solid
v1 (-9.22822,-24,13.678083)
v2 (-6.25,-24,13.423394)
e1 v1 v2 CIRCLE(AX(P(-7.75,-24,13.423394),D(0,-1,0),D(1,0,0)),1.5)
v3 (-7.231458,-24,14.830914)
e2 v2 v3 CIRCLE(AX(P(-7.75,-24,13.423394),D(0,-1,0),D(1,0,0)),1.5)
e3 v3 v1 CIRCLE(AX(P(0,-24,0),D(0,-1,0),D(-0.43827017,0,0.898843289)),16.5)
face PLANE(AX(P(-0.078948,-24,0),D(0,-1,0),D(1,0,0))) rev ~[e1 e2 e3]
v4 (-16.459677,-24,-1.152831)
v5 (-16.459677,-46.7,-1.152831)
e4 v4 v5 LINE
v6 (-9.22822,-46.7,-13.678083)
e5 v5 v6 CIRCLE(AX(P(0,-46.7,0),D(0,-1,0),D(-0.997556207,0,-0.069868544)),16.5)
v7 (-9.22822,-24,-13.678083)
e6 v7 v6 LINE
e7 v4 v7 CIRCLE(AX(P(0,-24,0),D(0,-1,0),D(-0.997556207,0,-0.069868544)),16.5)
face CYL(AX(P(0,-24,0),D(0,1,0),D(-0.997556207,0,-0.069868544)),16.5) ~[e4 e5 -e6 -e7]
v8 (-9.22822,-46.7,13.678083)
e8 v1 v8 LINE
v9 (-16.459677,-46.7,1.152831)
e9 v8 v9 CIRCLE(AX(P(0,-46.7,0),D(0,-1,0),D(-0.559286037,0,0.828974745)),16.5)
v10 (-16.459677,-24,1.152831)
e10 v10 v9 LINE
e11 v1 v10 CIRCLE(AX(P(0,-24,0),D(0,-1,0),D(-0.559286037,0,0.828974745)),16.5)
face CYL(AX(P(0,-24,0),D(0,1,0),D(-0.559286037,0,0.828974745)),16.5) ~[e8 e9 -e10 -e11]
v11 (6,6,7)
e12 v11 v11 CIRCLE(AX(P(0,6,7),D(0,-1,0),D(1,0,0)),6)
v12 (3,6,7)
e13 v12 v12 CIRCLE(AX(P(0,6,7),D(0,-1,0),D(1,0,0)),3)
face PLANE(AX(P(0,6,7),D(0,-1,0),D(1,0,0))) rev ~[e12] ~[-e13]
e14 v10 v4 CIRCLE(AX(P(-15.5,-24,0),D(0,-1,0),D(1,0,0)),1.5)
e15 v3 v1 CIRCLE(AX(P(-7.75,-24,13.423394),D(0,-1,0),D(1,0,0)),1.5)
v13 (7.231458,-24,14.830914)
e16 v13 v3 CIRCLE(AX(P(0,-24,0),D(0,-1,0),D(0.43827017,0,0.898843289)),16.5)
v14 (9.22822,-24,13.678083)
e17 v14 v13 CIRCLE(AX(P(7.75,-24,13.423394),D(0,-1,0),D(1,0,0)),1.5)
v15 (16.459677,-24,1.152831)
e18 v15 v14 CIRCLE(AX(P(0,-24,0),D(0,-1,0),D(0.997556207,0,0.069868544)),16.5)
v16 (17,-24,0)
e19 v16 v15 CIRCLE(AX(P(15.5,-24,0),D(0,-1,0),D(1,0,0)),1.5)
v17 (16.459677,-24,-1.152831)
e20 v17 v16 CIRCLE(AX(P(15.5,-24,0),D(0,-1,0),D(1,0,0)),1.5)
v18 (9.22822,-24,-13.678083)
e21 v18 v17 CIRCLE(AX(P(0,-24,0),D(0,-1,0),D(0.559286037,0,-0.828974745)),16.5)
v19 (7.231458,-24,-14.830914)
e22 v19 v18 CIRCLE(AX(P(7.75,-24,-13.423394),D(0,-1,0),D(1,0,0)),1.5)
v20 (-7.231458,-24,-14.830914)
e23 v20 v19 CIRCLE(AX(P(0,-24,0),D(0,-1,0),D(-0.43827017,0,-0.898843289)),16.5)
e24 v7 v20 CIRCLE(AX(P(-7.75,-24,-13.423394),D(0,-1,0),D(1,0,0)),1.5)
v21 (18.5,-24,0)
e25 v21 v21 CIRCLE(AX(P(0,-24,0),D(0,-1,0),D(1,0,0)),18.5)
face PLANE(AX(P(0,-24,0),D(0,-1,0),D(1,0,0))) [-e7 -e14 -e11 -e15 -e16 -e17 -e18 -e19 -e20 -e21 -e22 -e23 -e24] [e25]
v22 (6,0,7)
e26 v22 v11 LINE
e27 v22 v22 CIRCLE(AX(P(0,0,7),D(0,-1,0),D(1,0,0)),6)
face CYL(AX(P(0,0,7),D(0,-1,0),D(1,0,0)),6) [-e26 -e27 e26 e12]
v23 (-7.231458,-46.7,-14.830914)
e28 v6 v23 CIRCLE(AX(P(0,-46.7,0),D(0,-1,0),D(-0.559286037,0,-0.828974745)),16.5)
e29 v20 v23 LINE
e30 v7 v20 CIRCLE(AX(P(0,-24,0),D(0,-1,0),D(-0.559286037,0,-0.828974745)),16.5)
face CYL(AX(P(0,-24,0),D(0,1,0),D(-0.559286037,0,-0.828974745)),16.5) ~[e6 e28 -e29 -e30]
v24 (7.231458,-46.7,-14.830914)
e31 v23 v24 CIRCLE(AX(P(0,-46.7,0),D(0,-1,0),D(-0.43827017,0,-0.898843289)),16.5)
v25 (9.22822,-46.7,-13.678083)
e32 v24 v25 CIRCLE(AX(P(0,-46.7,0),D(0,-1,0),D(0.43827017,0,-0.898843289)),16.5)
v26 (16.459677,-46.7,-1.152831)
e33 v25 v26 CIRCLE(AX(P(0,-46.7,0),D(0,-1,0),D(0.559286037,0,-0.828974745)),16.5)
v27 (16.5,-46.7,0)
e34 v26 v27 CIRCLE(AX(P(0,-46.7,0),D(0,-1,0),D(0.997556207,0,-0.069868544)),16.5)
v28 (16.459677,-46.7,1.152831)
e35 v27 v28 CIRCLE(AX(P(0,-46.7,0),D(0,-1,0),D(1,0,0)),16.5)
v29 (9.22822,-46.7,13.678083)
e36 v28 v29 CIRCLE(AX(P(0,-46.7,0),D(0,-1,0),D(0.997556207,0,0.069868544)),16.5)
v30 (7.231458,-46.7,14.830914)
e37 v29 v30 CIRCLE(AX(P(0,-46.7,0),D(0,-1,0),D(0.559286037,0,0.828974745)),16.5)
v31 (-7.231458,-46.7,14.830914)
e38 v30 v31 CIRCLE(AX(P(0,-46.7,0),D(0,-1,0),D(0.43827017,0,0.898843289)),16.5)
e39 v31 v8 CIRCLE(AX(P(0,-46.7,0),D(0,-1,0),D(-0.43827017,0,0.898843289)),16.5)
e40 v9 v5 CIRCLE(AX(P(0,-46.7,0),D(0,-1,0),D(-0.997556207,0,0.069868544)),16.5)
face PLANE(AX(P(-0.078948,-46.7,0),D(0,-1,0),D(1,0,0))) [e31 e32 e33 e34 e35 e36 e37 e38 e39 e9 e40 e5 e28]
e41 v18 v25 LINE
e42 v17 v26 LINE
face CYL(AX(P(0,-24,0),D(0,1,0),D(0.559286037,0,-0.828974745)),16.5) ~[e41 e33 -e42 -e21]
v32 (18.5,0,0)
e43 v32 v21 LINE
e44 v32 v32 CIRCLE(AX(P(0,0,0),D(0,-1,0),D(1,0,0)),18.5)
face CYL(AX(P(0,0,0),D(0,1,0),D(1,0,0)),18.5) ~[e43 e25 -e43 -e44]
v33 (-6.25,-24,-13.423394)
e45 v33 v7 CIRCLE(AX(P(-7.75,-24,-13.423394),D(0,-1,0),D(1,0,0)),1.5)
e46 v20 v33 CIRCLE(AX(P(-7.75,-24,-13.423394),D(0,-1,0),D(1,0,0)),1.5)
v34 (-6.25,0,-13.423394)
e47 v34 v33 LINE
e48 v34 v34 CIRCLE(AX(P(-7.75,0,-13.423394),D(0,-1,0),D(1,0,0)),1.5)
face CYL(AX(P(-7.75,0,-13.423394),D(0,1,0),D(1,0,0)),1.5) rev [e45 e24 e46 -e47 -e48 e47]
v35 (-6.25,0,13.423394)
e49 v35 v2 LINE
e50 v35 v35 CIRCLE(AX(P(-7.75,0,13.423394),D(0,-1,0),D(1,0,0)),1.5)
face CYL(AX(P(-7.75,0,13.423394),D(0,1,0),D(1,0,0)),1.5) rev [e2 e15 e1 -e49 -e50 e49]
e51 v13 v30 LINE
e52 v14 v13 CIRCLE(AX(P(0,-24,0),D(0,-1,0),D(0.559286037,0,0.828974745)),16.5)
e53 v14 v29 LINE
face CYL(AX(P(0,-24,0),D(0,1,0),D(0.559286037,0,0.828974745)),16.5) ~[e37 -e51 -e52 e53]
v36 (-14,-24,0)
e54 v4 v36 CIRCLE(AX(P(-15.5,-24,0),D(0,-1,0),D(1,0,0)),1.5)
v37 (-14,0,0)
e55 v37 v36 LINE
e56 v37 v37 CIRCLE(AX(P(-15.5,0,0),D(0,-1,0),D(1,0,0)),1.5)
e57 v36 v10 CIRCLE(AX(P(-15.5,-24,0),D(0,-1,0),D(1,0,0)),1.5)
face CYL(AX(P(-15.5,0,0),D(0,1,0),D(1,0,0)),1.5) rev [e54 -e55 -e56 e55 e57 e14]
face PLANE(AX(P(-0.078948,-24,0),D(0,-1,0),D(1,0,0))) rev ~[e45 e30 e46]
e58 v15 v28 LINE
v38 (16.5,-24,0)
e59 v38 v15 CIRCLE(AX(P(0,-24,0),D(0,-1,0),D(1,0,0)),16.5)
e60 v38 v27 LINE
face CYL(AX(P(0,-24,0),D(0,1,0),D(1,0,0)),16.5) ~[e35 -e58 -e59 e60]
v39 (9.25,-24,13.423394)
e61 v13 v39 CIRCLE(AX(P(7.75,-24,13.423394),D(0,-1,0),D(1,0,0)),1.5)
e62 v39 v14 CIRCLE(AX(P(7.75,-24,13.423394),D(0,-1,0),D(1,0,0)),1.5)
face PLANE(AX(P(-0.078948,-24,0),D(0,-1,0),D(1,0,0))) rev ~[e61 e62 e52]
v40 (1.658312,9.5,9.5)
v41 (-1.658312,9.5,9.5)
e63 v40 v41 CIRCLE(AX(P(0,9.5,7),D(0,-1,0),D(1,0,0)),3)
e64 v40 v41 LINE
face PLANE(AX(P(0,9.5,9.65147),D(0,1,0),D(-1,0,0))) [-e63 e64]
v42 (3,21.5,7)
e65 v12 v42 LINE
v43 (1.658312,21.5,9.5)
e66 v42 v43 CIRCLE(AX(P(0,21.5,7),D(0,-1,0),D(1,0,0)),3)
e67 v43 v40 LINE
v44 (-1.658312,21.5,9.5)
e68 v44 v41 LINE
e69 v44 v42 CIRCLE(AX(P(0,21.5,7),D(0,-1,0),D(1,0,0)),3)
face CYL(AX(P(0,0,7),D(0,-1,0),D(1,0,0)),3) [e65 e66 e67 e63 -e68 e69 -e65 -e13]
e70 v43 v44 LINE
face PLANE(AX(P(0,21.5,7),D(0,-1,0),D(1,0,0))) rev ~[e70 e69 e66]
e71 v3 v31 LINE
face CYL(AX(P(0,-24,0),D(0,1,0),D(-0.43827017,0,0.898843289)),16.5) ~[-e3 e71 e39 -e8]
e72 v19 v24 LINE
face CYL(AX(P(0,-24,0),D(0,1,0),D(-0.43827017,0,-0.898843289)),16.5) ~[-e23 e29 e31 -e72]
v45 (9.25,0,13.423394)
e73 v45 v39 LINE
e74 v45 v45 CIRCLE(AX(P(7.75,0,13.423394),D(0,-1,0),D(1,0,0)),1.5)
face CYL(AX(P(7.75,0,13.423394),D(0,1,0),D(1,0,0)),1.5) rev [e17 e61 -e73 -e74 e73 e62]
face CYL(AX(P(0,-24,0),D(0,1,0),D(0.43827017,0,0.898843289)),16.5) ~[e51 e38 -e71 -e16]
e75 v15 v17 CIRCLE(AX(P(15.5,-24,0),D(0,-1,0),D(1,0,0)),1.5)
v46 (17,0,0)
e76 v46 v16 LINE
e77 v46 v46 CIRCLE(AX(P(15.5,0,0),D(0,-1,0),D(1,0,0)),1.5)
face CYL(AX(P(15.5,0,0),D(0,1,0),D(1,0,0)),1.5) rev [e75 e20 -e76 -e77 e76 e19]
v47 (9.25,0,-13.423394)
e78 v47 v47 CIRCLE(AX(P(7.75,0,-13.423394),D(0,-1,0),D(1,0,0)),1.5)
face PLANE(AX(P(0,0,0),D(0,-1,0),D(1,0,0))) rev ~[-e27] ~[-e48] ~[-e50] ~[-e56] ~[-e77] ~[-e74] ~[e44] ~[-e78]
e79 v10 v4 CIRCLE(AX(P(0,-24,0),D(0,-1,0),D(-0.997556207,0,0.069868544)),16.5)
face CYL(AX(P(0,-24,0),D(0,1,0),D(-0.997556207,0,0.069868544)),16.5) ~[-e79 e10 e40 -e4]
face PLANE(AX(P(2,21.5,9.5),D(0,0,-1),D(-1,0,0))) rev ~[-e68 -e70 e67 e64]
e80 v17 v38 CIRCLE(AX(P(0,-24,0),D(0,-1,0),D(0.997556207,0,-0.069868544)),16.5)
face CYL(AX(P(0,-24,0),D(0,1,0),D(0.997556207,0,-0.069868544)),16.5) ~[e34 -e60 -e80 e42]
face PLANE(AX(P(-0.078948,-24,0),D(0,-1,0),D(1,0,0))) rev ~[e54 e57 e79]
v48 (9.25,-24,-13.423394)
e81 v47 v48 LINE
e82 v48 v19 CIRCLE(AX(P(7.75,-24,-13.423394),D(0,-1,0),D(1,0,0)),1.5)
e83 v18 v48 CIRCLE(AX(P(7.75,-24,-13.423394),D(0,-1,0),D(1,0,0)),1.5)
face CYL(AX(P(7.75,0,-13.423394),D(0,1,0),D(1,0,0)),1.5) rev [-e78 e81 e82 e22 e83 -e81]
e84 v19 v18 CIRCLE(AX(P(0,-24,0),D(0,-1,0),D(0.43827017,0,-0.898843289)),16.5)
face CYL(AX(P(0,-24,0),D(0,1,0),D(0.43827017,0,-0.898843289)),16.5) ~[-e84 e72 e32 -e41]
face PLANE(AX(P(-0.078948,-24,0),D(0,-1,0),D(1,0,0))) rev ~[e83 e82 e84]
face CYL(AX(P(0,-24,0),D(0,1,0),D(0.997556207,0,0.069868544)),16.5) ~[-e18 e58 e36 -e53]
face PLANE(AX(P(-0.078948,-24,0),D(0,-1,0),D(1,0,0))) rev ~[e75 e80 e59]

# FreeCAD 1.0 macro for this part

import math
import FreeCAD as App
import Part
import Sketcher


def add_polygon(sketch, points):
    """Adds a closed chain of lines whose ends are joined by coincident constraints."""
    first, n = sketch.GeometryCount, len(points)
    for a, b in zip(points, points[1:] + points[:1]):
        sketch.addGeometry(Part.LineSegment(App.Vector(*a, 0), App.Vector(*b, 0)), False)
    for i in range(n):
        sketch.addConstraint(Sketcher.Constraint("Coincident", first + i, 2, first + (i + 1) % n, 1))

doc = App.newDocument("Part")
params = doc.addObject("Spreadsheet::Sheet", "Params")
for row, (alias, value) in enumerate([
    ("sketch1_diameter", "37 mm"),
    ("sketch1_diameter2", "3 mm"),
    ("pad1_length", "24 mm"),
    ("sketch2_diameter", "6 mm"),
    ("pad2_length", "21.5 mm"),
    ("sketch3_diameter", "12 mm"),
    ("sketch3_diameter2", "6 mm"),
    ("pad3_length", "6 mm"),
    ("sketch4_width", "4 mm"),
    ("sketch4_height", "1 mm"),
    ("pocket1_length", "12 mm"),
    ("sketch5_radius", "16.5 mm"),
    ("pad4_length", "22.7 mm"),
], start=1):
    params.set(f"A{row}", alias)
    params.set(f"B{row}", "=" + value)
    params.setAlias(f"B{row}", alias)

body = doc.addObject("PartDesign::Body", "Body")

sketch1 = body.newObject("Sketcher::SketchObject", "Sketch")
sketch1.AttachmentSupport = (doc.getObject("XZ_Plane"), [""])
sketch1.MapMode = "FlatFace"
sketch1.addGeometry([
    Part.Circle(App.Vector(0, 0, 0), App.Vector(0, 0, 1), 18.5),
    Part.Circle(App.Vector(-7.75, -13.423394, 0), App.Vector(0, 0, 1), 1.5),
    Part.Circle(App.Vector(7.75, -13.423394, 0), App.Vector(0, 0, 1), 1.5),
    Part.Circle(App.Vector(-15.5, 0, 0), App.Vector(0, 0, 1), 1.5),
    Part.Circle(App.Vector(-7.75, 13.423394, 0), App.Vector(0, 0, 1), 1.5),
    Part.Circle(App.Vector(15.5, 0, 0), App.Vector(0, 0, 1), 1.5),
    Part.Circle(App.Vector(7.75, 13.423394, 0), App.Vector(0, 0, 1), 1.5),
], False)
sketch1.addConstraint([
    Sketcher.Constraint("Coincident", 0, 3, -1, 1),
    Sketcher.Constraint("Equal", 1, 2),
    Sketcher.Constraint("Equal", 2, 3),
    Sketcher.Constraint("Equal", 3, 4),
    Sketcher.Constraint("Equal", 4, 5),
    Sketcher.Constraint("Equal", 5, 6),
    Sketcher.Constraint("Symmetric", 2, 3, 4, 3, -1, 1),
    Sketcher.Constraint("Symmetric", 3, 3, 5, 3, -1, 1),
    Sketcher.Constraint("Symmetric", 1, 3, 6, 3, -1, 1),
    Sketcher.Constraint("Symmetric", 1, 3, 2, 3, -2),
    Sketcher.Constraint("PointOnObject", 3, 3, -1),
    Sketcher.Constraint("Diameter", 0, 37.0),
    Sketcher.Constraint("Diameter", 1, 3.0),
    Sketcher.Constraint("DistanceX", 3, 3, 5, 3, 31.0),
    Sketcher.Constraint("DistanceX", 1, 3, 2, 3, 15.5),
    Sketcher.Constraint("DistanceY", 1, 3, -1, 1, 13.423394),
])
sketch1.setExpression("Constraints[11]", "Params.sketch1_diameter")
sketch1.setExpression("Constraints[12]", "Params.sketch1_diameter2")
pad1 = body.newObject("PartDesign::Pad", "Pad")
pad1.Profile = sketch1
pad1.setExpression("Length", "Params.pad1_length")

sketch2 = body.newObject("Sketcher::SketchObject", "Sketch001")
sketch2.AttachmentSupport = (doc.getObject("XZ_Plane"), [""])
sketch2.MapMode = "FlatFace"
sketch2.addGeometry(Part.Circle(App.Vector(0, 7, 0), App.Vector(0, 0, 1), 3), False)
sketch2.addConstraint([
    Sketcher.Constraint("PointOnObject", 0, 3, -2),
    Sketcher.Constraint("Diameter", 0, 6.0),
    Sketcher.Constraint("DistanceY", -1, 1, 0, 3, 7.0),
])
sketch2.setExpression("Constraints[1]", "Params.sketch2_diameter")
pad2 = body.newObject("PartDesign::Pad", "Pad001")
pad2.Profile = sketch2
pad2.setExpression("Length", "Params.pad2_length")
pad2.Reversed = True

sketch3 = body.newObject("Sketcher::SketchObject", "Sketch002")
sketch3.AttachmentSupport = (doc.getObject("XZ_Plane"), [""])
sketch3.MapMode = "FlatFace"
sketch3.addGeometry([
    Part.Circle(App.Vector(0, 7, 0), App.Vector(0, 0, 1), 6),
    Part.Circle(App.Vector(0, 7, 0), App.Vector(0, 0, 1), 3),
], False)
sketch3.addConstraint([
    Sketcher.Constraint("Coincident", 1, 3, 0, 3),
    Sketcher.Constraint("PointOnObject", 0, 3, -2),
    Sketcher.Constraint("Diameter", 0, 12.0),
    Sketcher.Constraint("Diameter", 1, 6.0),
    Sketcher.Constraint("DistanceY", -1, 1, 0, 3, 7.0),
])
sketch3.setExpression("Constraints[2]", "Params.sketch3_diameter")
sketch3.setExpression("Constraints[3]", "Params.sketch3_diameter2")
pad3 = body.newObject("PartDesign::Pad", "Pad002")
pad3.Profile = sketch3
pad3.setExpression("Length", "Params.pad3_length")
pad3.Reversed = True

sketch4 = body.newObject("Sketcher::SketchObject", "Sketch003")
sketch4.AttachmentSupport = (doc.getObject("XZ_Plane"), [""])
sketch4.MapMode = "FlatFace"
sketch4.AttachmentOffset = App.Placement(App.Vector(0, 0, -21.5), App.Rotation())
add_polygon(sketch4, [(-2, 9.5), (-2, 10.5), (2, 10.5), (2, 9.5)])
sketch4.addConstraint([
    Sketcher.Constraint("Vertical", 0),
    Sketcher.Constraint("Horizontal", 1),
    Sketcher.Constraint("Vertical", 2),
    Sketcher.Constraint("Horizontal", 3),
    Sketcher.Constraint("DistanceX", 1, 1, 1, 2, 4.0),
    Sketcher.Constraint("DistanceY", 0, 1, 0, 2, 1.0),
    Sketcher.Constraint("DistanceX", 0, 2, -1, 1, 2.0),
    Sketcher.Constraint("DistanceY", -1, 1, 0, 2, 10.5),
])
sketch4.setExpression("Constraints[8]", "Params.sketch4_width")
sketch4.setExpression("Constraints[9]", "Params.sketch4_height")
pocket1 = body.newObject("PartDesign::Pocket", "Pocket")
pocket1.Profile = sketch4
pocket1.setExpression("Length", "Params.pocket1_length")
pocket1.Reversed = True

sketch5 = body.newObject("Sketcher::SketchObject", "Sketch004")
sketch5.AttachmentSupport = (doc.getObject("XZ_Plane"), [""])
sketch5.MapMode = "FlatFace"
sketch5.AttachmentOffset = App.Placement(App.Vector(0, 0, 24), App.Rotation())
sketch5.addGeometry([
    Part.ArcOfCircle(Part.Circle(App.Vector(0, 0, 0), App.Vector(0, 0, 1), 16.5), math.radians(4.006437), math.radians(55.993563)),
    Part.ArcOfCircle(Part.Circle(App.Vector(0, 0, 0), App.Vector(0, 0, 1), 16.5), math.radians(55.993563), math.radians(64.006437)),
    Part.ArcOfCircle(Part.Circle(App.Vector(0, 0, 0), App.Vector(0, 0, 1), 16.5), math.radians(64.006437), math.radians(115.993563)),
    Part.ArcOfCircle(Part.Circle(App.Vector(0, 0, 0), App.Vector(0, 0, 1), 16.5), math.radians(115.993563), math.radians(124.006437)),
    Part.ArcOfCircle(Part.Circle(App.Vector(0, 0, 0), App.Vector(0, 0, 1), 16.5), math.radians(124.006437), math.radians(175.993563)),
    Part.ArcOfCircle(Part.Circle(App.Vector(0, 0, 0), App.Vector(0, 0, 1), 16.5), math.radians(175.993563), math.radians(184.006437)),
    Part.ArcOfCircle(Part.Circle(App.Vector(0, 0, 0), App.Vector(0, 0, 1), 16.5), math.radians(-175.993563), math.radians(-124.006437)),
    Part.ArcOfCircle(Part.Circle(App.Vector(0, 0, 0), App.Vector(0, 0, 1), 16.5), math.radians(-124.006437), math.radians(-115.993563)),
    Part.ArcOfCircle(Part.Circle(App.Vector(0, 0, 0), App.Vector(0, 0, 1), 16.5), math.radians(-115.993563), math.radians(-64.006437)),
    Part.ArcOfCircle(Part.Circle(App.Vector(0, 0, 0), App.Vector(0, 0, 1), 16.5), math.radians(-64.006437), math.radians(-55.993563)),
    Part.ArcOfCircle(Part.Circle(App.Vector(0, 0, 0), App.Vector(0, 0, 1), 16.5), math.radians(-55.993563), math.radians(-4.006437)),
    Part.ArcOfCircle(Part.Circle(App.Vector(0, 0, 0), App.Vector(0, 0, 1), 16.5), math.radians(-4.006437), math.radians(0)),
    Part.ArcOfCircle(Part.Circle(App.Vector(0, 0, 0), App.Vector(0, 0, 1), 16.5), math.radians(0), math.radians(4.006437)),
], False)
sketch5.addConstraint([
    Sketcher.Constraint("Tangent", 0, 2, 1, 1),
    Sketcher.Constraint("Tangent", 1, 2, 2, 1),
    Sketcher.Constraint("Tangent", 2, 2, 3, 1),
    Sketcher.Constraint("Tangent", 3, 2, 4, 1),
    Sketcher.Constraint("Tangent", 4, 2, 5, 1),
    Sketcher.Constraint("Tangent", 5, 2, 6, 1),
    Sketcher.Constraint("Tangent", 6, 2, 7, 1),
    Sketcher.Constraint("Tangent", 7, 2, 8, 1),
    Sketcher.Constraint("Tangent", 8, 2, 9, 1),
    Sketcher.Constraint("Tangent", 9, 2, 10, 1),
    Sketcher.Constraint("Tangent", 10, 2, 11, 1),
    Sketcher.Constraint("Tangent", 11, 2, 12, 1),
    Sketcher.Constraint("Tangent", 12, 2, 0, 1),
    Sketcher.Constraint("Coincident", 0, 3, -1, 1),
    Sketcher.Constraint("Coincident", 2, 3, -1, 1),
    Sketcher.Constraint("Coincident", 4, 3, -1, 1),
    Sketcher.Constraint("Coincident", 6, 3, -1, 1),
    Sketcher.Constraint("Coincident", 8, 3, -1, 1),
    Sketcher.Constraint("Coincident", 10, 3, -1, 1),
    Sketcher.Constraint("PointOnObject", 11, 2, -1),
    Sketcher.Constraint("Horizontal", 1, 2, 2, 2),
    Sketcher.Constraint("Horizontal", 0, 2, 3, 2),
    Sketcher.Constraint("Horizontal", 7, 2, 8, 2),
    Sketcher.Constraint("Horizontal", 6, 2, 9, 2),
    Sketcher.Constraint("Horizontal", 5, 2, 10, 2),
    Sketcher.Constraint("Horizontal", 4, 2, 12, 2),
    Sketcher.Constraint("Vertical", 4, 2, 5, 2),
    Sketcher.Constraint("Vertical", 3, 2, 6, 2),
    Sketcher.Constraint("Vertical", 2, 2, 7, 2),
    Sketcher.Constraint("Radius", 0, 16.5),
    Sketcher.Constraint("DistanceX", -1, 1, 0, 2, 9.22822),
    Sketcher.Constraint("DistanceY", -1, 1, 4, 2, 1.152831),
    Sketcher.Constraint("DistanceX", 1, 2, 0, 2, 1.996762),
])
sketch5.setExpression("Constraints[29]", "Params.sketch5_radius")
pad4 = body.newObject("PartDesign::Pad", "Pad003")
pad4.Profile = sketch5
pad4.setExpression("Length", "Params.pad4_length")

doc.recompute()
